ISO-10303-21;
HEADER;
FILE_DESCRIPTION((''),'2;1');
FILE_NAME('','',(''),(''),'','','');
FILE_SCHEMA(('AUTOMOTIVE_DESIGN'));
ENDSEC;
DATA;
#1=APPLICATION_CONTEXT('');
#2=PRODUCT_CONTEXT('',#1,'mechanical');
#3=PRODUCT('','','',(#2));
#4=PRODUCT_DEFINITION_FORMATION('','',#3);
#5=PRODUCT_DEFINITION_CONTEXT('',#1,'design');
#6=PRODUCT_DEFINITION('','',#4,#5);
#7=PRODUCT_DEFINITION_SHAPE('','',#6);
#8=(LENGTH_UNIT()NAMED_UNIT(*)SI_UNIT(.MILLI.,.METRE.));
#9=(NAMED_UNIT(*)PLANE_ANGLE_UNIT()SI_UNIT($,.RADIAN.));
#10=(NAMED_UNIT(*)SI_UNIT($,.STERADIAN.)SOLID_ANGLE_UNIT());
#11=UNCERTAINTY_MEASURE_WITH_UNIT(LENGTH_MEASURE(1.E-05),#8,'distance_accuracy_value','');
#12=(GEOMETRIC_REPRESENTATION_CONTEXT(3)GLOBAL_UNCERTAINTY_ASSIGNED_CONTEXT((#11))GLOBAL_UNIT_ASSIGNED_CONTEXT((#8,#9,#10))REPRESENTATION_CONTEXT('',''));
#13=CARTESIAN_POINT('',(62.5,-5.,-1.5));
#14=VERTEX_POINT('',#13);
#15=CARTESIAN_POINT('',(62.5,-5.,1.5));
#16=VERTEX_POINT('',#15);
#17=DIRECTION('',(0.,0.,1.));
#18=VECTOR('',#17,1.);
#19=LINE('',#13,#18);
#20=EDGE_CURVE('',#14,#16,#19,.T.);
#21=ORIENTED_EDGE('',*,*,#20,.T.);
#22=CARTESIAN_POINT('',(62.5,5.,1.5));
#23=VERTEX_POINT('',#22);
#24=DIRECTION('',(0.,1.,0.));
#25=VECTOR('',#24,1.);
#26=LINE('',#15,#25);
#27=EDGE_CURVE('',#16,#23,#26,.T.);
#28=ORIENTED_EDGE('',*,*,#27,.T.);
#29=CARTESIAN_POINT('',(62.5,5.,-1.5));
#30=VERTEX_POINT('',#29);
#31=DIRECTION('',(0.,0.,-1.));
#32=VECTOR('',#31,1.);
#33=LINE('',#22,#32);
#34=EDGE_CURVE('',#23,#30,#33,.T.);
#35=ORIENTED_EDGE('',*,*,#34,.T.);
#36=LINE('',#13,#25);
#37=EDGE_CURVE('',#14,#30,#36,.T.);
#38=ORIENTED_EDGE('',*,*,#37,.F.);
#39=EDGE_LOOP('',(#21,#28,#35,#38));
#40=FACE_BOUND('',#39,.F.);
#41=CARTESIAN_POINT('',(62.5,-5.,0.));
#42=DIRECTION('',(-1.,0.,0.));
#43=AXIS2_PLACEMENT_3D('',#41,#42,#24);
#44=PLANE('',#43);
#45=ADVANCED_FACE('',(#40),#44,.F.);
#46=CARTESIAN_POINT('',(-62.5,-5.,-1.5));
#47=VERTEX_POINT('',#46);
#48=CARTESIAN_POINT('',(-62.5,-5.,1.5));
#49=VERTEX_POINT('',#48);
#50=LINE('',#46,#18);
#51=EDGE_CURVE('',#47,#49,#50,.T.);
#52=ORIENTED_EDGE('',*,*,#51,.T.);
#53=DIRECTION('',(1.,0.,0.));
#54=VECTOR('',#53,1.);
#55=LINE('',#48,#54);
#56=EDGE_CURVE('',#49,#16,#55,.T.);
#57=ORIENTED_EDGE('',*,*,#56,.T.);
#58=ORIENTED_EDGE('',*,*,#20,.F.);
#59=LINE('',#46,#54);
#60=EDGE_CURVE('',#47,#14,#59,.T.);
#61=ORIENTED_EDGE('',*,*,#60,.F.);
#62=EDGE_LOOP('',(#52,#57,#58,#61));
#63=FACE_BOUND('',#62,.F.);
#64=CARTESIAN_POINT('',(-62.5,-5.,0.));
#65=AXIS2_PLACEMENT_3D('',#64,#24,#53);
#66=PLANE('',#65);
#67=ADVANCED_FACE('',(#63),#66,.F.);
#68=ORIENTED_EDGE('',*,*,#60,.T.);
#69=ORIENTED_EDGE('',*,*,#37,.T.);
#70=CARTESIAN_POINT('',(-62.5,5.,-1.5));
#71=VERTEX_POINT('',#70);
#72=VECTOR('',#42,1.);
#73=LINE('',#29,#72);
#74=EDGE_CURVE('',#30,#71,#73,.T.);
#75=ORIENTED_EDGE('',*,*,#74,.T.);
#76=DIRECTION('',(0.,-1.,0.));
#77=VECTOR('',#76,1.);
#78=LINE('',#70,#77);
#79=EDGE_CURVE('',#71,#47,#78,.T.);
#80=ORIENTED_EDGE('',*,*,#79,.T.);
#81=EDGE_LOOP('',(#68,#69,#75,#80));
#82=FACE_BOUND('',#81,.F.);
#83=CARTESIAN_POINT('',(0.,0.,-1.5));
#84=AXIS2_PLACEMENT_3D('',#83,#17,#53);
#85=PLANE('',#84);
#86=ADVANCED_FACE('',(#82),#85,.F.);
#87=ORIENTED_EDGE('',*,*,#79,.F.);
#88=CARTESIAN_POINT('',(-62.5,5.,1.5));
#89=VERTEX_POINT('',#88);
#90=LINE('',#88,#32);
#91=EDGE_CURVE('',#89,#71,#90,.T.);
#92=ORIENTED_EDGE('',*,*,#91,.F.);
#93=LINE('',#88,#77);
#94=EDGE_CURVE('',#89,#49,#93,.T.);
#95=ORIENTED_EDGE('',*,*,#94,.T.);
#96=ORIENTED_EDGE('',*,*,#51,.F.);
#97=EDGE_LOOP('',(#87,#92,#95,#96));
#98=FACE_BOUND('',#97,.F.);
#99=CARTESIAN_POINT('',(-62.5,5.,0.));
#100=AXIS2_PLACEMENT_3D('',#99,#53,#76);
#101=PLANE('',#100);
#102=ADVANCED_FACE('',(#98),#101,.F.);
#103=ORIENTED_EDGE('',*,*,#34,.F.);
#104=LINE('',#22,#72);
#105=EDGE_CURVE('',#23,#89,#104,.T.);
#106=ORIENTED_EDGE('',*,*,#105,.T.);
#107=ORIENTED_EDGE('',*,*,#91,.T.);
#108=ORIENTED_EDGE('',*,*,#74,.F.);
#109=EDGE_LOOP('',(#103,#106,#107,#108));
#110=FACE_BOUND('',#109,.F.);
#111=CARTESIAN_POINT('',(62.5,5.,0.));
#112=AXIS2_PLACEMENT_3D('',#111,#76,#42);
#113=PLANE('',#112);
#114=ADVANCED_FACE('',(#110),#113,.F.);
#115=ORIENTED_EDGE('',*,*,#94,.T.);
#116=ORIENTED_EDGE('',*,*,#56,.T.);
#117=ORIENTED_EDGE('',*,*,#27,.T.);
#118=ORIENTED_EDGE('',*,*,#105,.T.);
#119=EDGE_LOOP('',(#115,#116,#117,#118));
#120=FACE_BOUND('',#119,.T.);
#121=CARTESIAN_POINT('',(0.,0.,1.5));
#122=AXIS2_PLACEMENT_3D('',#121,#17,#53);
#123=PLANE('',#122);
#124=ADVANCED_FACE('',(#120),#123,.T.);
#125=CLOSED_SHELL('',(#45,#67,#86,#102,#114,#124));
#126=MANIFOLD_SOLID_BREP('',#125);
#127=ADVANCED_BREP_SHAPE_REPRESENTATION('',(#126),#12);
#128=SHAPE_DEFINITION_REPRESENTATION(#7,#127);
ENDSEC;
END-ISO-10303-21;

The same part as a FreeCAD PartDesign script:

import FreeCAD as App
import Part
import Sketcher

V = App.Vector

doc = App.newDocument("Part")
body = doc.addObject("PartDesign::Body", "Body")

sketch1 = body.newObject("Sketcher::SketchObject", "Sketch")
sketch1.AttachmentSupport = (doc.getObject("XY_Plane"), [""])
sketch1.MapMode = "FlatFace"
sketch1.addGeometry(Part.LineSegment(V(-62.5, 5, 0), V(-62.5, -5, 0)), False)
sketch1.addGeometry(Part.LineSegment(V(-62.5, -5, 0), V(62.5, -5, 0)), False)
sketch1.addGeometry(Part.LineSegment(V(62.5, -5, 0), V(62.5, 5, 0)), False)
sketch1.addGeometry(Part.LineSegment(V(62.5, 5, 0), V(-62.5, 5, 0)), False)
sketch1.addConstraint(Sketcher.Constraint("Coincident", 0, 2, 1, 1))
sketch1.addConstraint(Sketcher.Constraint("Coincident", 1, 2, 2, 1))
sketch1.addConstraint(Sketcher.Constraint("Coincident", 2, 2, 3, 1))
sketch1.addConstraint(Sketcher.Constraint("Coincident", 3, 2, 0, 1))
sketch1.addConstraint(Sketcher.Constraint("Vertical", 0))
sketch1.addConstraint(Sketcher.Constraint("Horizontal", 1))
sketch1.addConstraint(Sketcher.Constraint("Vertical", 2))
sketch1.addConstraint(Sketcher.Constraint("Horizontal", 3))
sketch1.addConstraint(Sketcher.Constraint("Symmetric", 0, 2, 2, 2, -1, 1))
sketch1.addConstraint(Sketcher.Constraint("DistanceX", 1, 1, 1, 2, 125.0))
sketch1.addConstraint(Sketcher.Constraint("DistanceY", 0, 2, 0, 1, 10.0))
pad1 = body.newObject("PartDesign::Pad", "Pad")
pad1.Profile = sketch1
pad1.Length = 3
pad1.Midplane = True

doc.recompute()
